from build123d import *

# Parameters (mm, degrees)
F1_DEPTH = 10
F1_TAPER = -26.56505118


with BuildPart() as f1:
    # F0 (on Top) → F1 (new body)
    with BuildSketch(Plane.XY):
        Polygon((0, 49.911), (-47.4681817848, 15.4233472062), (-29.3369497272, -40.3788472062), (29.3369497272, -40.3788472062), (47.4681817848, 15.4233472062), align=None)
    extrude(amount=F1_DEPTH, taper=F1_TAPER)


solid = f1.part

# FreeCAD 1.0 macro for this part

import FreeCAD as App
import Part
import Sketcher
Q = App.Units.Quantity

doc = App.newDocument("Part")
params = doc.addObject("Spreadsheet::Sheet", "Params")
for row, (alias, value) in enumerate([
    ("pad1_length", "10 mm"),
    ("pad1_taper", "26.565051 deg"),
], start=1):
    params.set(f"A{row}", alias)
    params.set(f"B{row}", "=" + value)
    params.setAlias(f"B{row}", alias)

body = doc.addObject("PartDesign::Body", "Body")

sketch1 = body.newObject("Sketcher::SketchObject", "Sketch")
sketch1.AttachmentSupport = (doc.getObject("XY_Plane"), [""])
sketch1.MapMode = "FlatFace"
sketch1.addGeometry([
    Part.LineSegment(App.Vector(0, 50, 0), App.Vector(-47, 15, 0)),
    Part.LineSegment(App.Vector(-47, 15, 0), App.Vector(-29, -40, 0)),
    Part.LineSegment(App.Vector(-29, -40, 0), App.Vector(29, -40, 0)),
    Part.LineSegment(App.Vector(29, -40, 0), App.Vector(47, 15, 0)),
    Part.LineSegment(App.Vector(47, 15, 0), App.Vector(0, 50, 0)),
], False)
sketch1.addConstraint([
    Sketcher.Constraint("Coincident", 0, 2, 1, 1),
    Sketcher.Constraint("Coincident", 1, 2, 2, 1),
    Sketcher.Constraint("Coincident", 2, 2, 3, 1),
    Sketcher.Constraint("Coincident", 3, 2, 4, 1),
    Sketcher.Constraint("Coincident", 4, 2, 0, 1),
    Sketcher.Constraint("Horizontal", 2),
    Sketcher.Constraint("Symmetric", 0, 2, 3, 2, -2),
    Sketcher.Constraint("PointOnObject", 4, 2, -2),
    Sketcher.Constraint("Equal", 0, 1),
    Sketcher.Constraint("Equal", 1, 3),
    Sketcher.Constraint("Angle", 0, Q("-144 deg")),
    Sketcher.Constraint("Angle", 1, Q("-72 deg")),
    Sketcher.Constraint("DistanceX", 2, 1, 2, 2, 58.673899),
    Sketcher.Constraint("DistanceY", -1, 1, 4, 2, 49.911),
])
pad1 = body.newObject("PartDesign::Pad", "Pad")
pad1.Profile = sketch1
pad1.setExpression("Length", "Params.pad1_length")
pad1.setExpression("TaperAngle", "Params.pad1_taper")

doc.recompute()
